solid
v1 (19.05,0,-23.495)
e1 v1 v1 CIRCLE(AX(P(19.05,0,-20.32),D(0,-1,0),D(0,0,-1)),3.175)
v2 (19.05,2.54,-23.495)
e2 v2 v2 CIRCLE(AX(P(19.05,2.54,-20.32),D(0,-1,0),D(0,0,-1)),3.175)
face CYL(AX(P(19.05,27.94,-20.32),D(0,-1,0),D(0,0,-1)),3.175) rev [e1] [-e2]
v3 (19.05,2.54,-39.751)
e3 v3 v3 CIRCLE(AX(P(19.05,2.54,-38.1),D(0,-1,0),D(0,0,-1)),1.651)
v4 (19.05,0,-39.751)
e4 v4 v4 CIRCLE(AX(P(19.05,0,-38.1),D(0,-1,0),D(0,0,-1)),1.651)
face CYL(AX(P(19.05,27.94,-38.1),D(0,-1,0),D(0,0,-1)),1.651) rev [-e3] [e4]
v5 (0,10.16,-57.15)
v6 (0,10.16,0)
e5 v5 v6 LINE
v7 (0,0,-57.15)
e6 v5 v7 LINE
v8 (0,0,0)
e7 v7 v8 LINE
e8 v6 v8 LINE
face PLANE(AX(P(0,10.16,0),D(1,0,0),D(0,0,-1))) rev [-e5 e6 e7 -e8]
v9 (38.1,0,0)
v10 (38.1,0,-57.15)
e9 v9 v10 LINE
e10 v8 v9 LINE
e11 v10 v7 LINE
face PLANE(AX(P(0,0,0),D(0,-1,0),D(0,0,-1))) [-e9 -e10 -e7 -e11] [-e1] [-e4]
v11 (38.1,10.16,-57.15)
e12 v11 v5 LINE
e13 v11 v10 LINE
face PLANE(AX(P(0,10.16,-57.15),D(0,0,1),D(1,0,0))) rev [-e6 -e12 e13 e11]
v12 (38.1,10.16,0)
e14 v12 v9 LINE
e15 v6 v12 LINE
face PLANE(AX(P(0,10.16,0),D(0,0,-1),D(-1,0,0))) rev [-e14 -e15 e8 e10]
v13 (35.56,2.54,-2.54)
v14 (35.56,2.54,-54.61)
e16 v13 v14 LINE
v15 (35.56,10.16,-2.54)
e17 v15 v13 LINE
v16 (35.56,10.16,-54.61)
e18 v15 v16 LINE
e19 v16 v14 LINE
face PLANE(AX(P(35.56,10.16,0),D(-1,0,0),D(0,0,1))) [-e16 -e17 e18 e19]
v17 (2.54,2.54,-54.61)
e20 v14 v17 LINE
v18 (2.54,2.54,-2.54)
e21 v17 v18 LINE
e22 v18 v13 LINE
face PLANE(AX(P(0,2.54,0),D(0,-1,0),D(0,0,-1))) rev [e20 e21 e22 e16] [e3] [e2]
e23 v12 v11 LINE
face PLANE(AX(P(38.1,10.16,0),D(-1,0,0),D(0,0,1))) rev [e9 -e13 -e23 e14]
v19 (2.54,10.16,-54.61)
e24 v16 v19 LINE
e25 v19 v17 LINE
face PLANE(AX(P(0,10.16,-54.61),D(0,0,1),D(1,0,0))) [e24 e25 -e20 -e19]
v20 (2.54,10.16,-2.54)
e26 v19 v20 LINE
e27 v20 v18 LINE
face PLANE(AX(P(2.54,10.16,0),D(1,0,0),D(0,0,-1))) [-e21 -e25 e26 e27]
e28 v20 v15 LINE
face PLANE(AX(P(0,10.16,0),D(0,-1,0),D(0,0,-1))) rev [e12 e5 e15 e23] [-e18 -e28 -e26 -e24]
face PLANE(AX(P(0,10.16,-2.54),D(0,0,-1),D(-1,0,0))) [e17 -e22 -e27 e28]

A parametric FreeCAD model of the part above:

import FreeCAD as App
import Part
import Sketcher
from FreeCAD import Vector
Q = App.Units.Quantity


def faces_at(feature, points):
    """Names of the faces that lie closest to the given points."""
    faces = feature.Shape.Faces
    near = lambda p: min(range(len(faces)), key=lambda i: faces[i].distToShape(Part.Vertex(*p))[0])
    return sorted({f"Face{near(p) + 1}" for p in points})

doc = App.newDocument("Part")
params = doc.addObject("Spreadsheet::Sheet", "Params")
for row, (alias, value) in enumerate([
    ("sketch1_width", "1.5 in"),
    ("sketch1_height", "2.25 in"),
    ("pad1_length", "0.4 in"),
    ("thickness_wall", "0.1 in"),
    ("sketch2_diameter", "0.13 in"),
    ("sketch2_diameter2", "0.25 in"),
    ("pocket1_length", "1.1 in"),
], start=1):
    params.set(f"A{row}", alias)
    params.set(f"B{row}", "=" + value)
    params.setAlias(f"B{row}", alias)

body = doc.addObject("PartDesign::Body", "Body")

# Sketch on XZ plane
sketch1 = body.newObject("Sketcher::SketchObject", "Sketch")
sketch1.AttachmentSupport = (doc.getObject("XZ_Plane"), [""])
sketch1.MapMode = "FlatFace"
sketch1.addGeometry(Part.LineSegment(Vector(0, -57, 0), Vector(0, 0, 0)), False)
sketch1.addGeometry(Part.LineSegment(Vector(0, 0, 0), Vector(38, 0, 0)), False)
sketch1.addGeometry(Part.LineSegment(Vector(38, 0, 0), Vector(38, -57, 0)), False)
sketch1.addGeometry(Part.LineSegment(Vector(38, -57, 0), Vector(0, -57, 0)), False)
sketch1.addConstraint(Sketcher.Constraint("Coincident", 0, 2, 1, 1))
sketch1.addConstraint(Sketcher.Constraint("Coincident", 1, 2, 2, 1))
sketch1.addConstraint(Sketcher.Constraint("Coincident", 2, 2, 3, 1))
sketch1.addConstraint(Sketcher.Constraint("Coincident", 3, 2, 0, 1))
sketch1.addConstraint(Sketcher.Constraint("Vertical", 0))
sketch1.addConstraint(Sketcher.Constraint("Horizontal", 1))
sketch1.addConstraint(Sketcher.Constraint("Vertical", 2))
sketch1.addConstraint(Sketcher.Constraint("Horizontal", 3))
sketch1.addConstraint(Sketcher.Constraint("Coincident", 0, 2, -1, 1))
sketch1.addConstraint(Sketcher.Constraint("DistanceX", 1, 1, 1, 2, Q("1.5 in")))
sketch1.addConstraint(Sketcher.Constraint("DistanceY", 0, 1, 0, 2, Q("2.25 in")))
sketch1.setExpression("Constraints[9]", "Params.sketch1_width")
sketch1.setExpression("Constraints[10]", "Params.sketch1_height")
pad1 = body.newObject("PartDesign::Pad", "Pad")
pad1.Profile = sketch1
pad1.setExpression("Length", "Params.pad1_length")
pad1.Reversed = True
doc.recompute()

thickness = body.newObject("PartDesign::Thickness", "Thickness")
thickness.Base = (pad1, faces_at(pad1, [(19.05, 10.16, -28.575)]))
thickness.setExpression("Value", "Params.thickness_wall")
thickness.Reversed = True
thickness.Join = "Intersection"

# Sketch on XZ plane
sketch2 = body.newObject("Sketcher::SketchObject", "Sketch001")
sketch2.AttachmentSupport = (doc.getObject("XZ_Plane"), [""])
sketch2.MapMode = "FlatFace"
sketch2.addGeometry(Part.Circle(Vector(19.1, -38.1, 0), Vector(0, 0, 1), 1.7), False)
sketch2.addGeometry(Part.Circle(Vector(19.1, -20.3, 0), Vector(0, 0, 1), 3.2), False)
sketch2.addConstraint(Sketcher.Constraint("Vertical", 0, 3, 1, 3))
sketch2.addConstraint(Sketcher.Constraint("Diameter", 0, Q("0.13 in")))
sketch2.addConstraint(Sketcher.Constraint("Diameter", 1, Q("0.25 in")))
sketch2.addConstraint(Sketcher.Constraint("DistanceY", 0, 3, -1, 1, Q("1.5 in")))
sketch2.addConstraint(Sketcher.Constraint("DistanceY", 1, 3, -1, 1, Q("0.8 in")))
sketch2.addConstraint(Sketcher.Constraint("DistanceX", -1, 1, 0, 3, Q("0.75 in")))
sketch2.setExpression("Constraints[1]", "Params.sketch2_diameter")
sketch2.setExpression("Constraints[2]", "Params.sketch2_diameter2")
pocket1 = body.newObject("PartDesign::Pocket", "Pocket")
pocket1.Profile = sketch2
pocket1.setExpression("Length", "Params.pocket1_length")

doc.recompute()
